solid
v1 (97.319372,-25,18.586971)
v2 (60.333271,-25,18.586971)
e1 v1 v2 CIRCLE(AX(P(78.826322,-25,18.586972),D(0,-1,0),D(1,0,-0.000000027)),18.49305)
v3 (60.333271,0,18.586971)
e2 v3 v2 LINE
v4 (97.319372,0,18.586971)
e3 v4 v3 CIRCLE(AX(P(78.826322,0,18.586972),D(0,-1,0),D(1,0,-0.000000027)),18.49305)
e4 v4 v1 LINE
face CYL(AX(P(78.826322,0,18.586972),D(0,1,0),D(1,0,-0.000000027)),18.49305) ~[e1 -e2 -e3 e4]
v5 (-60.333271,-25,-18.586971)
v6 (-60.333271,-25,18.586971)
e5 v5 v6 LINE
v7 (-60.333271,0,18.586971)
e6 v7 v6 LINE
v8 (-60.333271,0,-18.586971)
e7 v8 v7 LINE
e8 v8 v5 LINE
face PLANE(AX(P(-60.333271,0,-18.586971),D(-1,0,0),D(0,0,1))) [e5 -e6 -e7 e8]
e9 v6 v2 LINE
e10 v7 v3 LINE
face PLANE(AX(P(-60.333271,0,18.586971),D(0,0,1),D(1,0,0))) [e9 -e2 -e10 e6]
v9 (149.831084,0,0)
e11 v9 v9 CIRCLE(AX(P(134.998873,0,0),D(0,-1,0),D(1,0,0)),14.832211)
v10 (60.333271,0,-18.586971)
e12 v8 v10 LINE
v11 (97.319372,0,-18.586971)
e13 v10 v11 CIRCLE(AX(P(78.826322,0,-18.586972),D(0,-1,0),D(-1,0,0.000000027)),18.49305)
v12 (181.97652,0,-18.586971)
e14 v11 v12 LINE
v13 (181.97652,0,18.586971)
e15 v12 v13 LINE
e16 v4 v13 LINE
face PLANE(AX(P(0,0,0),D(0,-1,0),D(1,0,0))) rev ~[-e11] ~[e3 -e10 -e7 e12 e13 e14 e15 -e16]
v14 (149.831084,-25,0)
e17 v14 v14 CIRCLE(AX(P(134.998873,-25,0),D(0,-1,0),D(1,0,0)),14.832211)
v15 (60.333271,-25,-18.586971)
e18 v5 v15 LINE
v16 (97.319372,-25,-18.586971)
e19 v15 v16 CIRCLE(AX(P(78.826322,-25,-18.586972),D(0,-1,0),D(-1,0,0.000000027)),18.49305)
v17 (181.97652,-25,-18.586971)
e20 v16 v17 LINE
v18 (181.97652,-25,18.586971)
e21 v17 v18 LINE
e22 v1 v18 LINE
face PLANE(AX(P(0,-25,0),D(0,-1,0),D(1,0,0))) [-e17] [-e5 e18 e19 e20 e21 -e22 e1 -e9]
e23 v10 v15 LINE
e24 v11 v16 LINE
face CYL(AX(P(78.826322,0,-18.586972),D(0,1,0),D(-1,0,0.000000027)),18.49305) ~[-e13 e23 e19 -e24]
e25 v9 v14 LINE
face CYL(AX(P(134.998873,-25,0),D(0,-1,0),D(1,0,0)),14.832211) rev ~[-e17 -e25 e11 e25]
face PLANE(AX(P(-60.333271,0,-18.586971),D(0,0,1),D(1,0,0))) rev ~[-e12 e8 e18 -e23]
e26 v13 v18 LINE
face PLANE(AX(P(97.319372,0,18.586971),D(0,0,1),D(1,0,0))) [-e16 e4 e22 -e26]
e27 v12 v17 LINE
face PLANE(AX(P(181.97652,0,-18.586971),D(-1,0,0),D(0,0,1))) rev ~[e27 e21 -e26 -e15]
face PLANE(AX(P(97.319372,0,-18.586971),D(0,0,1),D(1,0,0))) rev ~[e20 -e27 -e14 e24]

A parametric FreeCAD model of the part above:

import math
import FreeCAD as App
import Part
import Sketcher

V = App.Vector

doc = App.newDocument("Part")
body = doc.addObject("PartDesign::Body", "Body")

sketch1 = doc.addObject("Sketcher::SketchObject", "Sketch")
body.addObject(sketch1)
sketch1.AttachmentSupport = (doc.XZ_Plane, [""])
sketch1.MapMode = "FlatFace"
sketch1.addGeometry([
    Part.LineSegment(V(-60.333271, 18.586971, 0), V(-60.333271, -18.586971, 0)),
    Part.LineSegment(V(-60.333271, -18.586971, 0), V(60.333271, -18.586971, 0)),
    Part.ArcOfCircle(Part.Circle(V(78.826322, -18.586972, 0), V(0, 0, 1), 18.49305), math.radians(179.999998), math.radians(360.000002)),
    Part.LineSegment(V(97.319372, -18.586971, 0), V(181.97652, -18.586971, 0)),
    Part.LineSegment(V(181.97652, -18.586971, 0), V(181.97652, 18.586971, 0)),
    Part.LineSegment(V(181.97652, 18.586971, 0), V(97.319372, 18.586971, 0)),
    Part.ArcOfCircle(Part.Circle(V(78.826322, 18.586972, 0), V(0, 0, 1), 18.49305), math.radians(-0.000002), math.radians(180.000002)),
    Part.LineSegment(V(60.333271, 18.586971, 0), V(-60.333271, 18.586971, 0)),
], False)
sketch1.addConstraint([
    Sketcher.Constraint("Coincident", 0, 2, 1, 1),
    Sketcher.Constraint("Coincident", 1, 2, 2, 1),
    Sketcher.Constraint("Coincident", 2, 2, 3, 1),
    Sketcher.Constraint("Coincident", 3, 2, 4, 1),
    Sketcher.Constraint("Coincident", 4, 2, 5, 1),
    Sketcher.Constraint("Coincident", 5, 2, 6, 1),
    Sketcher.Constraint("Coincident", 6, 2, 7, 1),
    Sketcher.Constraint("Coincident", 7, 2, 0, 1),
    Sketcher.Constraint("Vertical", 0),
    Sketcher.Constraint("Horizontal", 1),
    Sketcher.Constraint("Horizontal", 3),
    Sketcher.Constraint("Vertical", 4),
    Sketcher.Constraint("Horizontal", 5),
    Sketcher.Constraint("Horizontal", 7),
    Sketcher.Constraint("Equal", 2, 6),
    Sketcher.Constraint("Symmetric", 0, 2, 6, 2, -1, 1),
    Sketcher.Constraint("Symmetric", 2, 3, 6, 3, -1),
    Sketcher.Constraint("Horizontal", 2, 3, 0, 2),
    Sketcher.Constraint("Horizontal", 1, 2, 2, 2),
    Sketcher.Constraint("Horizontal", 6, 3, 4, 2),
    Sketcher.Constraint("Radius", 2, 18.49305),
    Sketcher.Constraint("DistanceY", 0, 2, 0, 1, 37.173942),
    Sketcher.Constraint("DistanceX", 2, 3, 3, 2, 103.150198),
    Sketcher.Constraint("DistanceX", 1, 1, 1, 2, 120.666542),
])
pad1 = doc.addObject("PartDesign::Pad", "Pad")
body.addObject(pad1)
pad1.Profile = sketch1
pad1.Length = 25

sketch2 = doc.addObject("Sketcher::SketchObject", "Sketch001")
body.addObject(sketch2)
sketch2.AttachmentSupport = (doc.XZ_Plane, [""])
sketch2.MapMode = "FlatFace"
sketch2.AttachmentOffset = App.Placement(V(0, 0, 25), App.Rotation())
sketch2.addGeometry(Part.Circle(V(134.998873, 0, 0), V(0, 0, 1), 14.832211), False)
sketch2.addConstraint([
    Sketcher.Constraint("PointOnObject", 0, 3, -1),
    Sketcher.Constraint("Diameter", 0, 29.664422),
    Sketcher.Constraint("DistanceX", -1, 1, 0, 3, 134.998873),
])
pocket1 = doc.addObject("PartDesign::Pocket", "Pocket")
body.addObject(pocket1)
pocket1.Profile = sketch2
pocket1.Length = 260
pocket1.Midplane = True

doc.recompute()
